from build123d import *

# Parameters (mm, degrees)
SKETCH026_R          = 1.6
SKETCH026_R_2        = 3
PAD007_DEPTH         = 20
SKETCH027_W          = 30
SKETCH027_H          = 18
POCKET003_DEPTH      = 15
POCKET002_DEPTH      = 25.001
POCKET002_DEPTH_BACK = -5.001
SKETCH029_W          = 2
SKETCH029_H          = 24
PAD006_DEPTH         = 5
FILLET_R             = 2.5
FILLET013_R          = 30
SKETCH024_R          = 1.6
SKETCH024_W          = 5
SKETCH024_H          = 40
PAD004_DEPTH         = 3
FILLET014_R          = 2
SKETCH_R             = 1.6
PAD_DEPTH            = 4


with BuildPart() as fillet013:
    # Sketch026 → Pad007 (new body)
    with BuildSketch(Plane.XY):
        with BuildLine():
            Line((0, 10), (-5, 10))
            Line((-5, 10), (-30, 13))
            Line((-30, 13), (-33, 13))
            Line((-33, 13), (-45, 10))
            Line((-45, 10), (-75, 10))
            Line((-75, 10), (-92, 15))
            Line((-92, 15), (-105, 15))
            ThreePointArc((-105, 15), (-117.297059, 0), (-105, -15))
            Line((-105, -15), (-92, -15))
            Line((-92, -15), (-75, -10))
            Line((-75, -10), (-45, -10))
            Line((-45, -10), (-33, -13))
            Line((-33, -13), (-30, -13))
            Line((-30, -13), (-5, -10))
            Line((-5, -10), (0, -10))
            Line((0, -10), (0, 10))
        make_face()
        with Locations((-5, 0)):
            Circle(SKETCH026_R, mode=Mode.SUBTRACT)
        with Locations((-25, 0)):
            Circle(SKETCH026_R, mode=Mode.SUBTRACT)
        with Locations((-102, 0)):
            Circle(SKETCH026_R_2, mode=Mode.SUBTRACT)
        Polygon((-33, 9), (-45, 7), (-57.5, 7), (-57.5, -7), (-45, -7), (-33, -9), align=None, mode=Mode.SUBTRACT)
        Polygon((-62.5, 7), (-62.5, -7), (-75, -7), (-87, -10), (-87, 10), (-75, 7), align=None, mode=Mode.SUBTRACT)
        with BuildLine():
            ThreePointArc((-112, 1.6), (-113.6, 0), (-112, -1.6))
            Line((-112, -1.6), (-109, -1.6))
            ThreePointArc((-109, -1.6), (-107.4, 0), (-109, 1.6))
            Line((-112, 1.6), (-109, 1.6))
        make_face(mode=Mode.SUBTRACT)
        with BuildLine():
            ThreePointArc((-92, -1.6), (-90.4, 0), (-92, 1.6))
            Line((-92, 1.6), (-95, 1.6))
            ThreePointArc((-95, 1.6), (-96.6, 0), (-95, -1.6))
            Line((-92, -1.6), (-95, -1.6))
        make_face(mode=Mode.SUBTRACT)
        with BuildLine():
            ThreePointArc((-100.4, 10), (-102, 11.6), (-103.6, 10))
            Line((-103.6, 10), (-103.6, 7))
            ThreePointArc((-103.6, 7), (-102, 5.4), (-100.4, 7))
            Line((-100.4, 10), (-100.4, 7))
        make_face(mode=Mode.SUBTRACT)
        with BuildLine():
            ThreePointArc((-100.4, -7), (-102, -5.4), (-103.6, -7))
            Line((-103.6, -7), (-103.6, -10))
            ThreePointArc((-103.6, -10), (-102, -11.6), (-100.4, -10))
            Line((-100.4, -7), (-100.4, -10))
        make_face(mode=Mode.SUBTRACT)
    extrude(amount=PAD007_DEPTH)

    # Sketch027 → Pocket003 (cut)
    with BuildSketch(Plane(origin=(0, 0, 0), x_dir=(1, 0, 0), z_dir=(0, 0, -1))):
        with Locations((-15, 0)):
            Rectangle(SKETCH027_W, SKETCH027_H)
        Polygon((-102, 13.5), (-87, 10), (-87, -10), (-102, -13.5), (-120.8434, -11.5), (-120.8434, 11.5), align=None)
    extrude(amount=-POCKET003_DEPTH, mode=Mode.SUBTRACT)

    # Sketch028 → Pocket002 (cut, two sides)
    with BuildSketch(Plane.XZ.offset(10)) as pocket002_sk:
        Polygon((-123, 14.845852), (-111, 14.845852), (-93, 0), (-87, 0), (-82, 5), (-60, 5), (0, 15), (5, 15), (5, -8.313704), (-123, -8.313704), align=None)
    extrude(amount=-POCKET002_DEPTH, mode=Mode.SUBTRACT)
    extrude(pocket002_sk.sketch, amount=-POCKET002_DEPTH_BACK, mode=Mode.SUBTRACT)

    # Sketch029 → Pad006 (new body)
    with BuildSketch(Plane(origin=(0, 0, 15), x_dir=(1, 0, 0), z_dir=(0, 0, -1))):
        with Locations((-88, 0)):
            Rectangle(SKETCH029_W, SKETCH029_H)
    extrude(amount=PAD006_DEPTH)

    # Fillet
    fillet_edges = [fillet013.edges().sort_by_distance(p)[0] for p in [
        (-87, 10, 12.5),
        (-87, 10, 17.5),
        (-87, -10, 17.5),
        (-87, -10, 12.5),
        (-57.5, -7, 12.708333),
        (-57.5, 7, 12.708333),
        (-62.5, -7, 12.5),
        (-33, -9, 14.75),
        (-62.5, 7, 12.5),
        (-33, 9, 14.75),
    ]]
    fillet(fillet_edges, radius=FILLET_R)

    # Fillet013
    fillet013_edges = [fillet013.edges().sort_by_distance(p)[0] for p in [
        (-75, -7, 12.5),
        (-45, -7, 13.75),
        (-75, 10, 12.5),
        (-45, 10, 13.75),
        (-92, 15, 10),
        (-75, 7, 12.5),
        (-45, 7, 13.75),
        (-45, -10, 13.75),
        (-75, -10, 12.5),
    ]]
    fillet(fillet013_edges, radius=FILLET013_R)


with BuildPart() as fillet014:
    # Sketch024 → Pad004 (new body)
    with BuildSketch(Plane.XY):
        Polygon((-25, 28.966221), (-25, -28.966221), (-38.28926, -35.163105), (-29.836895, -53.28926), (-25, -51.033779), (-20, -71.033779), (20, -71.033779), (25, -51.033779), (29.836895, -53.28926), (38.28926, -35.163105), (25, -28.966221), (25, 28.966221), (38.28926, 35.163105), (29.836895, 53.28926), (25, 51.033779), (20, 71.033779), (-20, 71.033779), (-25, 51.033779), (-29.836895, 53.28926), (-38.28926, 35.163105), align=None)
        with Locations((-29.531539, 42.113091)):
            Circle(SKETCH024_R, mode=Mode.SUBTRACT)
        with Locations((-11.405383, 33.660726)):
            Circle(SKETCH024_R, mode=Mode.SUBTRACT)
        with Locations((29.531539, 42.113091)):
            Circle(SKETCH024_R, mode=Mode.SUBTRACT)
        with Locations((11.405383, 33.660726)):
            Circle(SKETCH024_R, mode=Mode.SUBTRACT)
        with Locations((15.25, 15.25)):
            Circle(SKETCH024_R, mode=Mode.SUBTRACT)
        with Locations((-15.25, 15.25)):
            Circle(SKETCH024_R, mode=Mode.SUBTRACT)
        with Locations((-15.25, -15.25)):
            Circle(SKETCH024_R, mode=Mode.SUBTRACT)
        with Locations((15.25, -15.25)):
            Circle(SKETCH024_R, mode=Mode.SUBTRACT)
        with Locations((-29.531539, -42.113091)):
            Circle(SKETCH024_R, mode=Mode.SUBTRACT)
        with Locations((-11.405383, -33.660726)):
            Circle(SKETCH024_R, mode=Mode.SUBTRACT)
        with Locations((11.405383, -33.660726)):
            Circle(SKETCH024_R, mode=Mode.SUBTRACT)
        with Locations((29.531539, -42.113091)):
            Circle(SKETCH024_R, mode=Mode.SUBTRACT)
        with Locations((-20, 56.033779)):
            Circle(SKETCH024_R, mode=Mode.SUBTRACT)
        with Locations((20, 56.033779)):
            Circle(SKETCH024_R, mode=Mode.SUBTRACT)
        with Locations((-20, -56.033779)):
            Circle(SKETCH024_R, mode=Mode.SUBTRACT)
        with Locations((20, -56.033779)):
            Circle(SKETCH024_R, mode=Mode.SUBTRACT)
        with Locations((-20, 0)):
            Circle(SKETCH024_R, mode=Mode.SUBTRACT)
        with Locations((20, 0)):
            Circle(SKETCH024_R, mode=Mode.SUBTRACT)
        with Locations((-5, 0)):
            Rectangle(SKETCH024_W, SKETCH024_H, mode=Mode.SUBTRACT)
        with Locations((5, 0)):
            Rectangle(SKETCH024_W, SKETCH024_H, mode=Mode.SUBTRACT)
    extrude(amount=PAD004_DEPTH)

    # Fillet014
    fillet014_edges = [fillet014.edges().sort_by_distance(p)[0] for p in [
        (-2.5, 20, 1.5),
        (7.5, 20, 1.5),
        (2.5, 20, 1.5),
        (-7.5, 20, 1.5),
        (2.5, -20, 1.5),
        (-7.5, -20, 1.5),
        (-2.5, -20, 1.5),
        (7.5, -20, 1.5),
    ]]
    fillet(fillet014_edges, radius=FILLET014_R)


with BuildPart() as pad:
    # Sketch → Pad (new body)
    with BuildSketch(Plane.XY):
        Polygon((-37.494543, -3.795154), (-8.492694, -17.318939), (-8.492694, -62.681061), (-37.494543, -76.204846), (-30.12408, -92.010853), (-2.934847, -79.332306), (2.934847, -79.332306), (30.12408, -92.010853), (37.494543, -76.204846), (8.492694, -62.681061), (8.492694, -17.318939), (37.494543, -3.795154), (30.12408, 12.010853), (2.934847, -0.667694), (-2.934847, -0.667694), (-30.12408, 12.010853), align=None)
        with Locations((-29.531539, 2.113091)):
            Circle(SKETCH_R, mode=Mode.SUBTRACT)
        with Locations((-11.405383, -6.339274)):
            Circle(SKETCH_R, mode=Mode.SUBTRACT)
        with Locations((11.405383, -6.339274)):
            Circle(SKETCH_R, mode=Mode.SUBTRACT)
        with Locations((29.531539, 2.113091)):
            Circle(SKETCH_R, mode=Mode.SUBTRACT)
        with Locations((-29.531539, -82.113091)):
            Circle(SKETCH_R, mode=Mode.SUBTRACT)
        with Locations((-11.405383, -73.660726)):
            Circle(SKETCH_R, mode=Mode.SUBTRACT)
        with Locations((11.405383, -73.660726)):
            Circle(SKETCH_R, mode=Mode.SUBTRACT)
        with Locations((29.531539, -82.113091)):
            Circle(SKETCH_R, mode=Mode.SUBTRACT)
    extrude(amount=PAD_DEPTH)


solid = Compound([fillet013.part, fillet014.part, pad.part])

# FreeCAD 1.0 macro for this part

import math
import FreeCAD as App
import Part
import Sketcher
from FreeCAD import Vector
Q = App.Units.Quantity


def edges_at(feature, points):
    """Names of the edges that pass closest to the given points."""
    edges = feature.Shape.Edges
    near = lambda p: min(range(len(edges)), key=lambda i: edges[i].distToShape(Part.Vertex(*p))[0])
    return sorted({f"Edge{near(p) + 1}" for p in points})


def add_polygon(sketch, points):
    """Adds a closed chain of lines whose ends are joined by coincident constraints."""
    first, n = sketch.GeometryCount, len(points)
    for a, b in zip(points, points[1:] + points[:1]):
        sketch.addGeometry(Part.LineSegment(App.Vector(*a, 0), App.Vector(*b, 0)), False)
    for i in range(n):
        sketch.addConstraint(Sketcher.Constraint("Coincident", first + i, 2, first + (i + 1) % n, 1))

doc = App.newDocument("Part")
body = doc.addObject("PartDesign::Body", "Body")

# Sketch on XY plane
sketch1 = body.newObject("Sketcher::SketchObject", "Sketch")
sketch1.AttachmentSupport = (doc.getObject("XY_Plane"), [""])
sketch1.MapMode = "FlatFace"
sketch1.addGeometry(Part.LineSegment(Vector(0, 10, 0), Vector(-5, 10, 0)), False)  # 0
sketch1.addGeometry(Part.LineSegment(Vector(-5, 10, 0), Vector(-30, 13, 0)), False)  # 1
sketch1.addGeometry(Part.LineSegment(Vector(-30, 13, 0), Vector(-33, 13, 0)), False)  # 2
sketch1.addGeometry(Part.LineSegment(Vector(-33, 13, 0), Vector(-45, 10, 0)), False)  # 3
sketch1.addGeometry(Part.LineSegment(Vector(-45, 10, 0), Vector(-75, 10, 0)), False)  # 4
sketch1.addGeometry(Part.LineSegment(Vector(-75, 10, 0), Vector(-92, 15, 0)), False)  # 5
sketch1.addGeometry(Part.LineSegment(Vector(-92, 15, 0), Vector(-105, 15, 0)), False)  # 6
sketch1.addGeometry(Part.ArcOfCircle(Part.Circle(Vector(-102, 0, 0), Vector(0, 0, 1), 15.3), math.radians(101), math.radians(259)), False)  # 7
sketch1.addGeometry(Part.LineSegment(Vector(-105, -15, 0), Vector(-92, -15, 0)), False)  # 8
sketch1.addGeometry(Part.LineSegment(Vector(-92, -15, 0), Vector(-75, -10, 0)), False)  # 9
sketch1.addGeometry(Part.LineSegment(Vector(-75, -10, 0), Vector(-45, -10, 0)), False)  # 10
sketch1.addGeometry(Part.LineSegment(Vector(-45, -10, 0), Vector(-33, -13, 0)), False)  # 11
sketch1.addGeometry(Part.LineSegment(Vector(-33, -13, 0), Vector(-30, -13, 0)), False)  # 12
sketch1.addGeometry(Part.LineSegment(Vector(-30, -13, 0), Vector(-5, -10, 0)), False)  # 13
sketch1.addGeometry(Part.LineSegment(Vector(-5, -10, 0), Vector(0, -10, 0)), False)  # 14
sketch1.addGeometry(Part.LineSegment(Vector(0, -10, 0), Vector(0, 10, 0)), False)  # 15
sketch1.addGeometry(Part.ArcOfCircle(Part.Circle(Vector(-102, -7, 0), Vector(0, 0, 1), 1.6), math.radians(0), math.radians(180)), False)  # 16
sketch1.addGeometry(Part.LineSegment(Vector(-100.4, -7, 0), Vector(-100.4, -10, 0)), False)  # 17
sketch1.addGeometry(Part.ArcOfCircle(Part.Circle(Vector(-102, -10, 0), Vector(0, 0, 1), 1.6), math.radians(180), math.radians(360)), False)  # 18
sketch1.addGeometry(Part.LineSegment(Vector(-103.6, -10, 0), Vector(-103.6, -7, 0)), False)  # 19
sketch1.addGeometry(Part.ArcOfCircle(Part.Circle(Vector(-112, 0, 0), Vector(0, 0, 1), 1.6), math.radians(90), math.radians(270)), False)  # 20
sketch1.addGeometry(Part.LineSegment(Vector(-112, 1.6, 0), Vector(-109, 1.6, 0)), False)  # 21
sketch1.addGeometry(Part.ArcOfCircle(Part.Circle(Vector(-109, 0, 0), Vector(0, 0, 1), 1.6), math.radians(-90), math.radians(90)), False)  # 22
sketch1.addGeometry(Part.LineSegment(Vector(-109, -1.6, 0), Vector(-112, -1.6, 0)), False)  # 23
sketch1.addGeometry(Part.Circle(Vector(-102, 0, 0), Vector(0, 0, 1), 3), False)  # 24
sketch1.addGeometry(Part.ArcOfCircle(Part.Circle(Vector(-92, 0, 0), Vector(0, 0, 1), 1.6), math.radians(-90), math.radians(90)), False)  # 25
sketch1.addGeometry(Part.LineSegment(Vector(-92, -1.6, 0), Vector(-95, -1.6, 0)), False)  # 26
sketch1.addGeometry(Part.ArcOfCircle(Part.Circle(Vector(-95, 0, 0), Vector(0, 0, 1), 1.6), math.radians(90), math.radians(270)), False)  # 27
sketch1.addGeometry(Part.LineSegment(Vector(-95, 1.6, 0), Vector(-92, 1.6, 0)), False)  # 28
add_polygon(sketch1, [(-75, 7), (-62.5, 7), (-62.5, -7), (-75, -7), (-87, -10), (-87, 10)])  # lines 29-34
sketch1.addGeometry(Part.ArcOfCircle(Part.Circle(Vector(-102, 10, 0), Vector(0, 0, 1), 1.6), math.radians(0), math.radians(180)), False)  # 35
sketch1.addGeometry(Part.LineSegment(Vector(-100.4, 10, 0), Vector(-100.4, 7, 0)), False)  # 36
sketch1.addGeometry(Part.ArcOfCircle(Part.Circle(Vector(-102, 7, 0), Vector(0, 0, 1), 1.6), math.radians(180), math.radians(360)), False)  # 37
sketch1.addGeometry(Part.LineSegment(Vector(-103.6, 7, 0), Vector(-103.6, 10, 0)), False)  # 38
add_polygon(sketch1, [(-45, 7), (-33, 9), (-33, -9), (-45, -7), (-57.5, -7), (-57.5, 7)])  # lines 39-44
sketch1.addGeometry(Part.Circle(Vector(-25, 0, 0), Vector(0, 0, 1), 1.6), False)  # 45
sketch1.addGeometry(Part.Circle(Vector(-5, 0, 0), Vector(0, 0, 1), 1.6), False)  # 46
sketch1.addConstraint([
    Sketcher.Constraint("Coincident", 0, 2, 1, 1),
    Sketcher.Constraint("Coincident", 1, 2, 2, 1),
    Sketcher.Constraint("Coincident", 2, 2, 3, 1),
    Sketcher.Constraint("Coincident", 3, 2, 4, 1),
    Sketcher.Constraint("Coincident", 4, 2, 5, 1),
    Sketcher.Constraint("Coincident", 5, 2, 6, 1),
    Sketcher.Constraint("Coincident", 6, 2, 7, 1),
    Sketcher.Constraint("Coincident", 7, 2, 8, 1),
    Sketcher.Constraint("Coincident", 8, 2, 9, 1),
    Sketcher.Constraint("Coincident", 9, 2, 10, 1),
    Sketcher.Constraint("Coincident", 10, 2, 11, 1),
    Sketcher.Constraint("Coincident", 11, 2, 12, 1),
    Sketcher.Constraint("Coincident", 12, 2, 13, 1),
    Sketcher.Constraint("Coincident", 13, 2, 14, 1),
    Sketcher.Constraint("Coincident", 14, 2, 15, 1),
    Sketcher.Constraint("Coincident", 15, 2, 0, 1),
    Sketcher.Constraint("Tangent", 16, 1, 17, 1),
    Sketcher.Constraint("Tangent", 17, 2, 18, 2),
    Sketcher.Constraint("Tangent", 18, 1, 19, 1),
    Sketcher.Constraint("Tangent", 19, 2, 16, 2),
    Sketcher.Constraint("Tangent", 20, 1, 21, 1),
    Sketcher.Constraint("Tangent", 21, 2, 22, 2),
    Sketcher.Constraint("Tangent", 22, 1, 23, 1),
    Sketcher.Constraint("Tangent", 23, 2, 20, 2),
    Sketcher.Constraint("Tangent", 25, 1, 26, 1),
    Sketcher.Constraint("Tangent", 26, 2, 27, 2),
    Sketcher.Constraint("Tangent", 27, 1, 28, 1),
    Sketcher.Constraint("Tangent", 28, 2, 25, 2),
    Sketcher.Constraint("Tangent", 35, 1, 36, 1),
    Sketcher.Constraint("Tangent", 36, 2, 37, 2),
    Sketcher.Constraint("Tangent", 37, 1, 38, 1),
    Sketcher.Constraint("Tangent", 38, 2, 35, 2),
    Sketcher.Constraint("Horizontal", 0),
    Sketcher.Constraint("Horizontal", 2),
    Sketcher.Constraint("Horizontal", 4),
    Sketcher.Constraint("Horizontal", 6),
    Sketcher.Constraint("Horizontal", 8),
    Sketcher.Constraint("Horizontal", 10),
    Sketcher.Constraint("Horizontal", 12),
    Sketcher.Constraint("Horizontal", 14),
    Sketcher.Constraint("Vertical", 15),
    Sketcher.Constraint("Vertical", 17),
    Sketcher.Constraint("Vertical", 19),
    Sketcher.Constraint("Horizontal", 21),
    Sketcher.Constraint("Horizontal", 23),
    Sketcher.Constraint("Horizontal", 26),
    Sketcher.Constraint("Horizontal", 28),
    Sketcher.Constraint("Horizontal", 29),
    Sketcher.Constraint("Vertical", 30),
    Sketcher.Constraint("Horizontal", 31),
    Sketcher.Constraint("Vertical", 33),
    Sketcher.Constraint("Vertical", 36),
    Sketcher.Constraint("Vertical", 38),
    Sketcher.Constraint("Vertical", 40),
    Sketcher.Constraint("Horizontal", 42),
    Sketcher.Constraint("Vertical", 43),
    Sketcher.Constraint("Horizontal", 44),
    Sketcher.Constraint("Coincident", 24, 3, 7, 3),
    Sketcher.Constraint("Equal", 18, 20),
    Sketcher.Constraint("Equal", 22, 25),
    Sketcher.Constraint("Equal", 27, 35),
    Sketcher.Constraint("Equal", 37, 45),
    Sketcher.Constraint("Equal", 45, 46),
    Sketcher.Constraint("Symmetric", 14, 2, 15, 2, -1, 1),
    Sketcher.Constraint("Symmetric", 18, 3, 35, 3, -1),
    Sketcher.Constraint("Symmetric", 6, 2, 7, 2, -1),
    Sketcher.Constraint("Symmetric", 4, 2, 9, 2, -1),
    Sketcher.Constraint("Symmetric", 2, 2, 11, 2, -1),
    Sketcher.Constraint("Symmetric", 31, 2, 34, 2, -1),
    Sketcher.Constraint("Symmetric", 41, 2, 44, 2, -1),
    Sketcher.Constraint("PointOnObject", 20, 3, -1),
    Sketcher.Constraint("PointOnObject", 25, 3, -1),
    Sketcher.Constraint("PointOnObject", 45, 3, -1),
    Sketcher.Constraint("PointOnObject", 46, 3, -1),
    Sketcher.Constraint("Parallel", 3, 32),
    Sketcher.Constraint("Parallel", 11, 34),
    Sketcher.Constraint("Horizontal", 35, 3, 0, 2),
    Sketcher.Constraint("Horizontal", 0, 2, 3, 2),
    Sketcher.Constraint("Horizontal", 37, 3, 29, 2),
    Sketcher.Constraint("Horizontal", 19, 2, 30, 2),
    Sketcher.Constraint("Horizontal", 18, 1, 32, 2),
    Sketcher.Constraint("Horizontal", 15, 2, 33, 2),
    Sketcher.Constraint("Horizontal", 31, 2, 41, 2),
    Sketcher.Constraint("Vertical", 7, 3, 16, 3),
    Sketcher.Constraint("Vertical", 46, 3, 0, 2),
    Sketcher.Constraint("Vertical", 25, 3, 5, 2),
    Sketcher.Constraint("Vertical", 5, 2, 8, 2),
    Sketcher.Constraint("Vertical", 1, 2, 12, 2),
    Sketcher.Constraint("Vertical", 0, 2, 13, 2),
    Sketcher.Constraint("Vertical", 9, 2, 31, 2),
    Sketcher.Constraint("Vertical", 11, 2, 39, 2),
    Sketcher.Constraint("Vertical", 10, 2, 41, 2),
    Sketcher.Constraint("Equal", 12, 21),
    Sketcher.Constraint("Equal", 23, 26),
    Sketcher.Constraint("Equal", 31, 42),
    Sketcher.Constraint("Equal", 28, 17),
    Sketcher.Constraint("Equal", 11, 32),
    Sketcher.Constraint("Equal", 39, 41),
    Sketcher.Constraint("Diameter", 24, 6.0),
    Sketcher.Constraint("Diameter", 45, 3.2),
    Sketcher.Constraint("DistanceX", 0, 2, 0, 1, 5.0),
    Sketcher.Constraint("DistanceX", 2, 2, 2, 1, 3.0),
    Sketcher.Constraint("DistanceX", 4, 2, 4, 1, 30.0),
    Sketcher.Constraint("DistanceX", 6, 2, 6, 1, 13.0),
    Sketcher.Constraint("DistanceY", 15, 1, 15, 2, 20.0),
    Sketcher.Constraint("DistanceY", 40, 2, 40, 1, 18.0),
    Sketcher.Constraint("DistanceX", 29, 1, 29, 2, 12.5),
    Sketcher.Constraint("DistanceX", 7, 3, -1, 1, 102.000001),
    Sketcher.Constraint("DistanceX", 20, 3, -1, 1, 112.0),
    Sketcher.Constraint("DistanceX", 25, 3, -1, 1, 92.0),
    Sketcher.Constraint("DistanceX", 45, 3, -1, 1, 25.0),
    Sketcher.Constraint("DistanceX", 1, 2, -1, 1, 30.0),
    Sketcher.Constraint("DistanceX", 3, 2, -1, 1, 45.0),
    Sketcher.Constraint("DistanceY", -1, 1, 5, 2, 15.0),
])
pad1 = body.newObject("PartDesign::Pad", "Pad")
pad1.Profile = sketch1
pad1.Length = 20

# Sketch on XY plane
sketch2 = body.newObject("Sketcher::SketchObject", "Sketch001")
sketch2.AttachmentSupport = (doc.getObject("XY_Plane"), [""])
sketch2.MapMode = "FlatFace"
add_polygon(sketch2, [(-30, -9), (-30, 9), (0, 9), (0, -9)])  # lines 0-3
add_polygon(sketch2, [(-87, -10), (-102, -14), (-121, -12), (-121, 12), (-102, 14), (-87, 10)])  # lines 4-9
sketch2.addConstraint([
    Sketcher.Constraint("Vertical", 0),
    Sketcher.Constraint("Horizontal", 1),
    Sketcher.Constraint("Vertical", 2),
    Sketcher.Constraint("Horizontal", 3),
    Sketcher.Constraint("Vertical", 6),
    Sketcher.Constraint("Vertical", 9),
    Sketcher.Constraint("Symmetric", 1, 2, 2, 2, -1, 1),
    Sketcher.Constraint("Symmetric", 4, 2, 7, 2, -1),
    Sketcher.Constraint("Equal", 5, 7),
    Sketcher.Constraint("Equal", 4, 8),
    Sketcher.Constraint("DistanceX", 1, 1, 1, 2, 30.0),
    Sketcher.Constraint("DistanceY", 0, 1, 0, 2, 18.0),
    Sketcher.Constraint("DistanceY", 6, 1, 6, 2, 23.0),
    Sketcher.Constraint("DistanceY", 9, 2, 9, 1, 20.0),
    Sketcher.Constraint("DistanceX", 4, 2, -1, 1, 102.0),
    Sketcher.Constraint("DistanceX", 8, 2, -1, 1, 87.0),
    Sketcher.Constraint("DistanceY", 4, 2, 5, 2, 2.0),
    Sketcher.Constraint("DistanceX", 5, 2, -1, 1, 120.8434),
])
pocket1 = body.newObject("PartDesign::Pocket", "Pocket")
pocket1.Profile = sketch2
pocket1.Length = 15
pocket1.Reversed = True

# Sketch on XZ plane
sketch3 = body.newObject("Sketcher::SketchObject", "Sketch002")
sketch3.AttachmentSupport = (doc.getObject("XZ_Plane"), [""])
sketch3.MapMode = "FlatFace"
sketch3.AttachmentOffset = App.Placement(Vector(0, 0, 10), App.Rotation())
add_polygon(sketch3, [(-111, 15), (-123, 15), (-123, -8), (5, -8), (5, 15), (0, 15), (-60, 5), (-82, 5), (-87, 0), (-93, 0)])  # lines 0-9
sketch3.addConstraint([
    Sketcher.Constraint("Horizontal", 0),
    Sketcher.Constraint("Vertical", 1),
    Sketcher.Constraint("Horizontal", 2),
    Sketcher.Constraint("Vertical", 3),
    Sketcher.Constraint("Horizontal", 4),
    Sketcher.Constraint("Horizontal", 6),
    Sketcher.Constraint("Horizontal", 8),
    Sketcher.Constraint("PointOnObject", 4, 2, -2),
    Sketcher.Constraint("PointOnObject", 7, 2, -1),
    Sketcher.Constraint("DistanceX", 0, 2, 0, 1, 12.0),
    Sketcher.Constraint("DistanceX", 2, 1, 2, 2, 128.0),
    Sketcher.Constraint("DistanceX", 4, 2, 4, 1, 5.0),
    Sketcher.Constraint("DistanceX", 6, 2, 6, 1, 22.0),
    Sketcher.Constraint("DistanceX", 8, 2, 8, 1, 6.0),
    Sketcher.Constraint("Angle", 7, Q("-135 deg")),
    Sketcher.Constraint("DistanceY", -1, 1, 3, 2, 15.0),
    Sketcher.Constraint("DistanceX", 5, 2, -1, 1, 60.0),
    Sketcher.Constraint("DistanceY", -1, 1, 5, 2, 5.0),
    Sketcher.Constraint("DistanceY", 1, 2, 1, 1, 23.159556),
    Sketcher.Constraint("DistanceY", 3, 1, 3, 2, 23.313704),
])
pocket2 = body.newObject("PartDesign::Pocket", "Pocket001")
pocket2.Profile = sketch3
pocket2.Type = "ThroughAll"
pocket2.Midplane = True

# Sketch on XY plane
sketch4 = body.newObject("Sketcher::SketchObject", "Sketch003")
sketch4.AttachmentSupport = (doc.getObject("XY_Plane"), [""])
sketch4.MapMode = "FlatFace"
sketch4.AttachmentOffset = App.Placement(Vector(0, 0, 15), App.Rotation())
add_polygon(sketch4, [(-89, -12), (-89, 12), (-87, 12), (-87, -12)])  # lines 0-3
sketch4.addConstraint([
    Sketcher.Constraint("Vertical", 0),
    Sketcher.Constraint("Horizontal", 1),
    Sketcher.Constraint("Vertical", 2),
    Sketcher.Constraint("Horizontal", 3),
    Sketcher.Constraint("DistanceX", 1, 1, 1, 2, 2.0),
    Sketcher.Constraint("DistanceY", 0, 1, 0, 2, 24.0),
    Sketcher.Constraint("DistanceX", 0, 2, -1, 1, 89.0),
    Sketcher.Constraint("DistanceY", -1, 1, 0, 2, 12.0),
])
pad2 = body.newObject("PartDesign::Pad", "Pad001")
pad2.Profile = sketch4
pad2.Length = 5
pad2.Reversed = True
doc.recompute()

fillet = body.newObject("PartDesign::Fillet", "Fillet")
fillet.Base = (pad2, edges_at(pad2, [
    (-87, 10, 15),
    (-87, 10, 15),
    (-87, -10, 15),
    (-87, -10, 15),
    (-57.5, -7, 12.708),
    (-57.5, 7, 12.708),
    (-62.5, -7, 12.5),
    (-33, -9, 14.75),
    (-62.5, 7, 12.5),
    (-33, 9, 14.75),
]))
fillet.Radius = 2.5
doc.recompute()

fillet2 = body.newObject("PartDesign::Fillet", "Fillet001")
fillet2.Base = (fillet, edges_at(fillet, [
    (-75, -7, 12.5),
    (-45, -7, 13.75),
    (-75, 10, 12.5),
    (-45, 10, 13.75),
    (-92, 15, 10),
    (-75, 7, 12.5),
    (-45, 7, 13.75),
    (-45, -10, 13.75),
    (-75, -10, 12.5),
]))
fillet2.Radius = 30
body2 = doc.addObject("PartDesign::Body", "Body001")

# Sketch on XY plane
sketch5 = body2.newObject("Sketcher::SketchObject", "Sketch004")
sketch5.AttachmentSupport = (doc.getObject("XY_Plane001"), [""])
sketch5.MapMode = "FlatFace"
add_polygon(sketch5, [(-25, 29), (-25, -29), (-38.3, -35.2), (-29.8, -53.3), (-25, -51), (-20, -71), (20, -71), (25, -51), (29.8, -53.3), (38.3, -35.2), (25, -29), (25, 29), (38.3, 35.2), (29.8, 53.3), (25, 51), (20, 71), (-20, 71), (-25, 51), (-29.8, 53.3), (-38.3, 35.2)])  # lines 0-19
sketch5.addGeometry(Part.Circle(Vector(-20, -56, 0), Vector(0, 0, 1), 1.6), False)  # 20
sketch5.addGeometry(Part.Circle(Vector(-29.5, -42.1, 0), Vector(0, 0, 1), 1.6), False)  # 21
sketch5.addGeometry(Part.Circle(Vector(-11.4, -33.7, 0), Vector(0, 0, 1), 1.6), False)  # 22
sketch5.addGeometry(Part.Circle(Vector(-15.2, -15.2, 0), Vector(0, 0, 1), 1.6), False)  # 23
sketch5.addGeometry(Part.Circle(Vector(11.4, -33.7, 0), Vector(0, 0, 1), 1.6), False)  # 24
sketch5.addGeometry(Part.Circle(Vector(20, -56, 0), Vector(0, 0, 1), 1.6), False)  # 25
sketch5.addGeometry(Part.Circle(Vector(29.5, -42.1, 0), Vector(0, 0, 1), 1.6), False)  # 26
sketch5.addGeometry(Part.Circle(Vector(15.2, -15.2, 0), Vector(0, 0, 1), 1.6), False)  # 27
sketch5.addGeometry(Part.Circle(Vector(-20, 0, 0), Vector(0, 0, 1), 1.6), False)  # 28
add_polygon(sketch5, [(-2.5, -20), (-7.5, -20), (-7.5, 20), (-2.5, 20)])  # lines 29-32
sketch5.addGeometry(Part.Circle(Vector(-15.2, 15.2, 0), Vector(0, 0, 1), 1.6), False)  # 33
sketch5.addGeometry(Part.Circle(Vector(-29.5, 42.1, 0), Vector(0, 0, 1), 1.6), False)  # 34
sketch5.addGeometry(Part.Circle(Vector(-20, 56, 0), Vector(0, 0, 1), 1.6), False)  # 35
sketch5.addGeometry(Part.Circle(Vector(-11.4, 33.7, 0), Vector(0, 0, 1), 1.6), False)  # 36
add_polygon(sketch5, [(7.5, -20), (2.5, -20), (2.5, 20), (7.5, 20)])  # lines 37-40
sketch5.addGeometry(Part.Circle(Vector(15.2, 15.2, 0), Vector(0, 0, 1), 1.6), False)  # 41
sketch5.addGeometry(Part.Circle(Vector(20, 0, 0), Vector(0, 0, 1), 1.6), False)  # 42
sketch5.addGeometry(Part.Circle(Vector(11.4, 33.7, 0), Vector(0, 0, 1), 1.6), False)  # 43
sketch5.addGeometry(Part.Circle(Vector(29.5, 42.1, 0), Vector(0, 0, 1), 1.6), False)  # 44
sketch5.addGeometry(Part.Circle(Vector(20, 56, 0), Vector(0, 0, 1), 1.6), False)  # 45
sketch5.addConstraint([
    Sketcher.Constraint("Vertical", 0),
    Sketcher.Constraint("Horizontal", 5),
    Sketcher.Constraint("Vertical", 10),
    Sketcher.Constraint("Horizontal", 15),
    Sketcher.Constraint("Horizontal", 29),
    Sketcher.Constraint("Vertical", 30),
    Sketcher.Constraint("Horizontal", 31),
    Sketcher.Constraint("Vertical", 32),
    Sketcher.Constraint("Horizontal", 37),
    Sketcher.Constraint("Vertical", 38),
    Sketcher.Constraint("Horizontal", 39),
    Sketcher.Constraint("Vertical", 40),
    Sketcher.Constraint("Equal", 20, 21),
    Sketcher.Constraint("Equal", 21, 22),
    Sketcher.Constraint("Equal", 22, 23),
    Sketcher.Constraint("Equal", 23, 24),
    Sketcher.Constraint("Equal", 24, 25),
    Sketcher.Constraint("Equal", 25, 26),
    Sketcher.Constraint("Equal", 26, 27),
    Sketcher.Constraint("Equal", 27, 28),
    Sketcher.Constraint("Equal", 28, 33),
    Sketcher.Constraint("Equal", 33, 34),
    Sketcher.Constraint("Equal", 34, 35),
    Sketcher.Constraint("Equal", 35, 36),
    Sketcher.Constraint("Equal", 36, 41),
    Sketcher.Constraint("Equal", 41, 42),
    Sketcher.Constraint("Equal", 42, 43),
    Sketcher.Constraint("Equal", 43, 44),
    Sketcher.Constraint("Equal", 44, 45),
    Sketcher.Constraint("Symmetric", 27, 3, 33, 3, -1, 1),
    Sketcher.Constraint("Symmetric", 26, 3, 34, 3, -1, 1),
    Sketcher.Constraint("Symmetric", 25, 3, 35, 3, -1, 1),
    Sketcher.Constraint("Symmetric", 24, 3, 36, 3, -1, 1),
    Sketcher.Constraint("Symmetric", 23, 3, 41, 3, -1, 1),
    Sketcher.Constraint("Symmetric", 28, 3, 42, 3, -1, 1),
    Sketcher.Constraint("Symmetric", 22, 3, 43, 3, -1, 1),
    Sketcher.Constraint("Symmetric", 21, 3, 44, 3, -1, 1),
    Sketcher.Constraint("Symmetric", 20, 3, 45, 3, -1, 1),
    Sketcher.Constraint("Symmetric", 0, 2, 10, 2, -1, 1),
    Sketcher.Constraint("Symmetric", 1, 2, 11, 2, -1, 1),
    Sketcher.Constraint("Symmetric", 2, 2, 12, 2, -1, 1),
    Sketcher.Constraint("Symmetric", 3, 2, 13, 2, -1, 1),
    Sketcher.Constraint("Symmetric", 4, 2, 14, 2, -1, 1),
    Sketcher.Constraint("Symmetric", 6, 2, 16, 2, -1, 1),
    Sketcher.Constraint("Symmetric", 7, 2, 17, 2, -1, 1),
    Sketcher.Constraint("Symmetric", 8, 2, 18, 2, -1, 1),
    Sketcher.Constraint("Symmetric", 31, 2, 37, 2, -1, 1),
    Sketcher.Constraint("Symmetric", 29, 2, 39, 2, -1, 1),
    Sketcher.Constraint("Symmetric", 22, 3, 24, 3, -2),
    Sketcher.Constraint("Symmetric", 20, 3, 25, 3, -2),
    Sketcher.Constraint("Symmetric", 21, 3, 26, 3, -2),
    Sketcher.Constraint("Symmetric", 23, 3, 27, 3, -2),
    Sketcher.Constraint("Symmetric", 3, 2, 6, 2, -2),
    Sketcher.Constraint("Symmetric", 2, 2, 7, 2, -2),
    Sketcher.Constraint("Symmetric", 1, 2, 8, 2, -2),
    Sketcher.Constraint("PointOnObject", 28, 3, -1),
    Sketcher.Constraint("Perpendicular", 1, 2),
    Sketcher.Constraint("Perpendicular", 2, 3),
    Sketcher.Constraint("Perpendicular", 8, 9),
    Sketcher.Constraint("Parallel", 6, 16),
    Sketcher.Constraint("Perpendicular", 18, 19),
    Sketcher.Constraint("Horizontal", 32, 2, 37, 2),
    Sketcher.Constraint("Vertical", 20, 3, 28, 3),
    Sketcher.Constraint("Vertical", 0, 2, 3, 2),
    Sketcher.Constraint("Vertical", 35, 3, 4, 2),
    Sketcher.Constraint("Vertical", 45, 3, 5, 2),
    Sketcher.Constraint("Equal", 15, 30),
    Sketcher.Constraint("Diameter", 20, 3.2),
    Sketcher.Constraint("DistanceX", 5, 1, 5, 2, 40.0),
    Sketcher.Constraint("DistanceX", 29, 2, 29, 1, 5.0),
    Sketcher.Constraint("Angle", 1, Q("-154.999999 deg")),
    Sketcher.Constraint("Distance", 2, 19.999999),
    Sketcher.Constraint("DistanceX", 0, 2, -1, 1, 25.0),
    Sketcher.Constraint("DistanceY", 20, 3, 3, 2, 5.0),
    Sketcher.Constraint("DistanceY", 4, 2, 20, 3, 15.0),
    Sketcher.Constraint("DistanceX", 32, 2, 37, 2, 5.0),
    Sketcher.Constraint("DistanceX", 23, 3, 27, 3, 30.5),
    Sketcher.Constraint("DistanceY", 23, 3, 33, 3, 30.5),
    Sketcher.Constraint("DistanceY", 0, 2, 0, 1, 57.932442),
    Sketcher.Constraint("DistanceX", 21, 3, -1, 1, 29.531539),
    Sketcher.Constraint("DistanceY", 21, 3, -1, 1, 42.113091),
    Sketcher.Constraint("DistanceX", 1, 2, -1, 1, 38.28926),
    Sketcher.Constraint("DistanceX", 21, 3, 24, 3, 40.936922),
    Sketcher.Constraint("DistanceY", 1, 2, 22, 3, 1.502379),
])
pad3 = body2.newObject("PartDesign::Pad", "Pad002")
pad3.Profile = sketch5
pad3.Length = 3
doc.recompute()

fillet3 = body2.newObject("PartDesign::Fillet", "Fillet002")
fillet3.Base = (pad3, edges_at(pad3, [
    (-2.5, 20, 1.5),
    (7.5, 20, 1.5),
    (2.5, 20, 1.5),
    (-7.5, 20, 1.5),
    (2.5, -20, 1.5),
    (-7.5, -20, 1.5),
    (-2.5, -20, 1.5),
    (7.5, -20, 1.5),
]))
fillet3.Radius = 2
body3 = doc.addObject("PartDesign::Body", "Body002")

# Sketch on XY plane
sketch6 = body3.newObject("Sketcher::SketchObject", "Sketch005")
sketch6.AttachmentSupport = (doc.getObject("XY_Plane002"), [""])
sketch6.MapMode = "FlatFace"
add_polygon(sketch6, [(-37.5, -3.8), (-8.5, -17.3), (-8.5, -62.7), (-37.5, -76.2), (-30.1, -92), (-2.9, -79.3), (2.9, -79.3), (30.1, -92), (37.5, -76.2), (8.5, -62.7), (8.5, -17.3), (37.5, -3.8), (30.1, 12), (2.9, -0.7), (-2.9, -0.7), (-30.1, 12)])  # lines 0-15
sketch6.addGeometry(Part.Circle(Vector(-29.5, -82.1, 0), Vector(0, 0, 1), 1.6), False)  # 16
sketch6.addGeometry(Part.Circle(Vector(-11.4, -73.7, 0), Vector(0, 0, 1), 1.6), False)  # 17
sketch6.addGeometry(Part.Circle(Vector(11.4, -73.7, 0), Vector(0, 0, 1), 1.6), False)  # 18
sketch6.addGeometry(Part.Circle(Vector(29.5, -82.1, 0), Vector(0, 0, 1), 1.6), False)  # 19
sketch6.addGeometry(Part.Circle(Vector(-29.5, 2.1, 0), Vector(0, 0, 1), 1.6), False)  # 20
sketch6.addGeometry(Part.Circle(Vector(-11.4, -6.3, 0), Vector(0, 0, 1), 1.6), False)  # 21
sketch6.addGeometry(Part.Circle(Vector(11.4, -6.3, 0), Vector(0, 0, 1), 1.6), False)  # 22
sketch6.addGeometry(Part.Circle(Vector(29.5, 2.1, 0), Vector(0, 0, 1), 1.6), False)  # 23
sketch6.addConstraint([
    Sketcher.Constraint("Vertical", 1),
    Sketcher.Constraint("Horizontal", 5),
    Sketcher.Constraint("Vertical", 9),
    Sketcher.Constraint("Horizontal", 13),
    Sketcher.Constraint("Equal", 16, 17),
    Sketcher.Constraint("Equal", 17, 18),
    Sketcher.Constraint("Equal", 18, 19),
    Sketcher.Constraint("Equal", 19, 20),
    Sketcher.Constraint("Equal", 20, 21),
    Sketcher.Constraint("Equal", 21, 22),
    Sketcher.Constraint("Equal", 22, 23),
    Sketcher.Constraint("Symmetric", 17, 3, 18, 3, -2),
    Sketcher.Constraint("Symmetric", 16, 3, 19, 3, -2),
    Sketcher.Constraint("Symmetric", 21, 3, 22, 3, -2),
    Sketcher.Constraint("Symmetric", 20, 3, 23, 3, -2),
    Sketcher.Constraint("Symmetric", 3, 2, 6, 2, -2),
    Sketcher.Constraint("Symmetric", 2, 2, 7, 2, -2),
    Sketcher.Constraint("Symmetric", 1, 2, 8, 2, -2),
    Sketcher.Constraint("Symmetric", 11, 2, 14, 2, -2),
    Sketcher.Constraint("Symmetric", 10, 2, 15, 2, -2),
    Sketcher.Constraint("Perpendicular", 2, 3),
    Sketcher.Constraint("Perpendicular", 3, 4),
    Sketcher.Constraint("Parallel", 0, 6),
    Sketcher.Constraint("Perpendicular", 6, 7),
    Sketcher.Constraint("Parallel", 4, 10),
    Sketcher.Constraint("Perpendicular", 10, 11),
    Sketcher.Constraint("Perpendicular", 11, 12),
    Sketcher.Constraint("Parallel", 8, 14),
    Sketcher.Constraint("Vertical", 16, 3, 20, 3),
    Sketcher.Constraint("Vertical", 17, 3, 21, 3),
    Sketcher.Constraint("Vertical", 7, 2, 10, 2),
    Sketcher.Constraint("Vertical", 6, 2, 11, 2),
    Sketcher.Constraint("Vertical", 5, 2, 12, 2),
    Sketcher.Constraint("Diameter", 16, 3.2),
    Sketcher.Constraint("Angle", 0, Q("-25.000001 deg")),
    Sketcher.Constraint("Distance", 0, 32.0),
    Sketcher.Constraint("Distance", 4, 29.999999),
    Sketcher.Constraint("Distance", 3, 17.439999),
    Sketcher.Constraint("DistanceX", 5, 1, 5, 2, 5.869694),
    Sketcher.Constraint("DistanceY", 1, 2, 1, 1, 45.362122),
    Sketcher.Constraint("DistanceX", 16, 3, -1, 1, 29.531539),
    Sketcher.Constraint("DistanceY", 16, 3, -1, 1, 82.113091),
    Sketcher.Constraint("DistanceY", -1, 1, 20, 3, 2.113091),
    Sketcher.Constraint("DistanceY", 0, 2, -1, 1, 17.318939),
    Sketcher.Constraint("DistanceX", 16, 3, 18, 3, 40.936922),
    Sketcher.Constraint("DistanceY", 17, 3, 21, 3, 67.321452),
    Sketcher.Constraint("DistanceY", 2, 2, 17, 3, 2.54412),
])
pad4 = body3.newObject("PartDesign::Pad", "Pad003")
pad4.Profile = sketch6
pad4.Length = 4

doc.recompute()
